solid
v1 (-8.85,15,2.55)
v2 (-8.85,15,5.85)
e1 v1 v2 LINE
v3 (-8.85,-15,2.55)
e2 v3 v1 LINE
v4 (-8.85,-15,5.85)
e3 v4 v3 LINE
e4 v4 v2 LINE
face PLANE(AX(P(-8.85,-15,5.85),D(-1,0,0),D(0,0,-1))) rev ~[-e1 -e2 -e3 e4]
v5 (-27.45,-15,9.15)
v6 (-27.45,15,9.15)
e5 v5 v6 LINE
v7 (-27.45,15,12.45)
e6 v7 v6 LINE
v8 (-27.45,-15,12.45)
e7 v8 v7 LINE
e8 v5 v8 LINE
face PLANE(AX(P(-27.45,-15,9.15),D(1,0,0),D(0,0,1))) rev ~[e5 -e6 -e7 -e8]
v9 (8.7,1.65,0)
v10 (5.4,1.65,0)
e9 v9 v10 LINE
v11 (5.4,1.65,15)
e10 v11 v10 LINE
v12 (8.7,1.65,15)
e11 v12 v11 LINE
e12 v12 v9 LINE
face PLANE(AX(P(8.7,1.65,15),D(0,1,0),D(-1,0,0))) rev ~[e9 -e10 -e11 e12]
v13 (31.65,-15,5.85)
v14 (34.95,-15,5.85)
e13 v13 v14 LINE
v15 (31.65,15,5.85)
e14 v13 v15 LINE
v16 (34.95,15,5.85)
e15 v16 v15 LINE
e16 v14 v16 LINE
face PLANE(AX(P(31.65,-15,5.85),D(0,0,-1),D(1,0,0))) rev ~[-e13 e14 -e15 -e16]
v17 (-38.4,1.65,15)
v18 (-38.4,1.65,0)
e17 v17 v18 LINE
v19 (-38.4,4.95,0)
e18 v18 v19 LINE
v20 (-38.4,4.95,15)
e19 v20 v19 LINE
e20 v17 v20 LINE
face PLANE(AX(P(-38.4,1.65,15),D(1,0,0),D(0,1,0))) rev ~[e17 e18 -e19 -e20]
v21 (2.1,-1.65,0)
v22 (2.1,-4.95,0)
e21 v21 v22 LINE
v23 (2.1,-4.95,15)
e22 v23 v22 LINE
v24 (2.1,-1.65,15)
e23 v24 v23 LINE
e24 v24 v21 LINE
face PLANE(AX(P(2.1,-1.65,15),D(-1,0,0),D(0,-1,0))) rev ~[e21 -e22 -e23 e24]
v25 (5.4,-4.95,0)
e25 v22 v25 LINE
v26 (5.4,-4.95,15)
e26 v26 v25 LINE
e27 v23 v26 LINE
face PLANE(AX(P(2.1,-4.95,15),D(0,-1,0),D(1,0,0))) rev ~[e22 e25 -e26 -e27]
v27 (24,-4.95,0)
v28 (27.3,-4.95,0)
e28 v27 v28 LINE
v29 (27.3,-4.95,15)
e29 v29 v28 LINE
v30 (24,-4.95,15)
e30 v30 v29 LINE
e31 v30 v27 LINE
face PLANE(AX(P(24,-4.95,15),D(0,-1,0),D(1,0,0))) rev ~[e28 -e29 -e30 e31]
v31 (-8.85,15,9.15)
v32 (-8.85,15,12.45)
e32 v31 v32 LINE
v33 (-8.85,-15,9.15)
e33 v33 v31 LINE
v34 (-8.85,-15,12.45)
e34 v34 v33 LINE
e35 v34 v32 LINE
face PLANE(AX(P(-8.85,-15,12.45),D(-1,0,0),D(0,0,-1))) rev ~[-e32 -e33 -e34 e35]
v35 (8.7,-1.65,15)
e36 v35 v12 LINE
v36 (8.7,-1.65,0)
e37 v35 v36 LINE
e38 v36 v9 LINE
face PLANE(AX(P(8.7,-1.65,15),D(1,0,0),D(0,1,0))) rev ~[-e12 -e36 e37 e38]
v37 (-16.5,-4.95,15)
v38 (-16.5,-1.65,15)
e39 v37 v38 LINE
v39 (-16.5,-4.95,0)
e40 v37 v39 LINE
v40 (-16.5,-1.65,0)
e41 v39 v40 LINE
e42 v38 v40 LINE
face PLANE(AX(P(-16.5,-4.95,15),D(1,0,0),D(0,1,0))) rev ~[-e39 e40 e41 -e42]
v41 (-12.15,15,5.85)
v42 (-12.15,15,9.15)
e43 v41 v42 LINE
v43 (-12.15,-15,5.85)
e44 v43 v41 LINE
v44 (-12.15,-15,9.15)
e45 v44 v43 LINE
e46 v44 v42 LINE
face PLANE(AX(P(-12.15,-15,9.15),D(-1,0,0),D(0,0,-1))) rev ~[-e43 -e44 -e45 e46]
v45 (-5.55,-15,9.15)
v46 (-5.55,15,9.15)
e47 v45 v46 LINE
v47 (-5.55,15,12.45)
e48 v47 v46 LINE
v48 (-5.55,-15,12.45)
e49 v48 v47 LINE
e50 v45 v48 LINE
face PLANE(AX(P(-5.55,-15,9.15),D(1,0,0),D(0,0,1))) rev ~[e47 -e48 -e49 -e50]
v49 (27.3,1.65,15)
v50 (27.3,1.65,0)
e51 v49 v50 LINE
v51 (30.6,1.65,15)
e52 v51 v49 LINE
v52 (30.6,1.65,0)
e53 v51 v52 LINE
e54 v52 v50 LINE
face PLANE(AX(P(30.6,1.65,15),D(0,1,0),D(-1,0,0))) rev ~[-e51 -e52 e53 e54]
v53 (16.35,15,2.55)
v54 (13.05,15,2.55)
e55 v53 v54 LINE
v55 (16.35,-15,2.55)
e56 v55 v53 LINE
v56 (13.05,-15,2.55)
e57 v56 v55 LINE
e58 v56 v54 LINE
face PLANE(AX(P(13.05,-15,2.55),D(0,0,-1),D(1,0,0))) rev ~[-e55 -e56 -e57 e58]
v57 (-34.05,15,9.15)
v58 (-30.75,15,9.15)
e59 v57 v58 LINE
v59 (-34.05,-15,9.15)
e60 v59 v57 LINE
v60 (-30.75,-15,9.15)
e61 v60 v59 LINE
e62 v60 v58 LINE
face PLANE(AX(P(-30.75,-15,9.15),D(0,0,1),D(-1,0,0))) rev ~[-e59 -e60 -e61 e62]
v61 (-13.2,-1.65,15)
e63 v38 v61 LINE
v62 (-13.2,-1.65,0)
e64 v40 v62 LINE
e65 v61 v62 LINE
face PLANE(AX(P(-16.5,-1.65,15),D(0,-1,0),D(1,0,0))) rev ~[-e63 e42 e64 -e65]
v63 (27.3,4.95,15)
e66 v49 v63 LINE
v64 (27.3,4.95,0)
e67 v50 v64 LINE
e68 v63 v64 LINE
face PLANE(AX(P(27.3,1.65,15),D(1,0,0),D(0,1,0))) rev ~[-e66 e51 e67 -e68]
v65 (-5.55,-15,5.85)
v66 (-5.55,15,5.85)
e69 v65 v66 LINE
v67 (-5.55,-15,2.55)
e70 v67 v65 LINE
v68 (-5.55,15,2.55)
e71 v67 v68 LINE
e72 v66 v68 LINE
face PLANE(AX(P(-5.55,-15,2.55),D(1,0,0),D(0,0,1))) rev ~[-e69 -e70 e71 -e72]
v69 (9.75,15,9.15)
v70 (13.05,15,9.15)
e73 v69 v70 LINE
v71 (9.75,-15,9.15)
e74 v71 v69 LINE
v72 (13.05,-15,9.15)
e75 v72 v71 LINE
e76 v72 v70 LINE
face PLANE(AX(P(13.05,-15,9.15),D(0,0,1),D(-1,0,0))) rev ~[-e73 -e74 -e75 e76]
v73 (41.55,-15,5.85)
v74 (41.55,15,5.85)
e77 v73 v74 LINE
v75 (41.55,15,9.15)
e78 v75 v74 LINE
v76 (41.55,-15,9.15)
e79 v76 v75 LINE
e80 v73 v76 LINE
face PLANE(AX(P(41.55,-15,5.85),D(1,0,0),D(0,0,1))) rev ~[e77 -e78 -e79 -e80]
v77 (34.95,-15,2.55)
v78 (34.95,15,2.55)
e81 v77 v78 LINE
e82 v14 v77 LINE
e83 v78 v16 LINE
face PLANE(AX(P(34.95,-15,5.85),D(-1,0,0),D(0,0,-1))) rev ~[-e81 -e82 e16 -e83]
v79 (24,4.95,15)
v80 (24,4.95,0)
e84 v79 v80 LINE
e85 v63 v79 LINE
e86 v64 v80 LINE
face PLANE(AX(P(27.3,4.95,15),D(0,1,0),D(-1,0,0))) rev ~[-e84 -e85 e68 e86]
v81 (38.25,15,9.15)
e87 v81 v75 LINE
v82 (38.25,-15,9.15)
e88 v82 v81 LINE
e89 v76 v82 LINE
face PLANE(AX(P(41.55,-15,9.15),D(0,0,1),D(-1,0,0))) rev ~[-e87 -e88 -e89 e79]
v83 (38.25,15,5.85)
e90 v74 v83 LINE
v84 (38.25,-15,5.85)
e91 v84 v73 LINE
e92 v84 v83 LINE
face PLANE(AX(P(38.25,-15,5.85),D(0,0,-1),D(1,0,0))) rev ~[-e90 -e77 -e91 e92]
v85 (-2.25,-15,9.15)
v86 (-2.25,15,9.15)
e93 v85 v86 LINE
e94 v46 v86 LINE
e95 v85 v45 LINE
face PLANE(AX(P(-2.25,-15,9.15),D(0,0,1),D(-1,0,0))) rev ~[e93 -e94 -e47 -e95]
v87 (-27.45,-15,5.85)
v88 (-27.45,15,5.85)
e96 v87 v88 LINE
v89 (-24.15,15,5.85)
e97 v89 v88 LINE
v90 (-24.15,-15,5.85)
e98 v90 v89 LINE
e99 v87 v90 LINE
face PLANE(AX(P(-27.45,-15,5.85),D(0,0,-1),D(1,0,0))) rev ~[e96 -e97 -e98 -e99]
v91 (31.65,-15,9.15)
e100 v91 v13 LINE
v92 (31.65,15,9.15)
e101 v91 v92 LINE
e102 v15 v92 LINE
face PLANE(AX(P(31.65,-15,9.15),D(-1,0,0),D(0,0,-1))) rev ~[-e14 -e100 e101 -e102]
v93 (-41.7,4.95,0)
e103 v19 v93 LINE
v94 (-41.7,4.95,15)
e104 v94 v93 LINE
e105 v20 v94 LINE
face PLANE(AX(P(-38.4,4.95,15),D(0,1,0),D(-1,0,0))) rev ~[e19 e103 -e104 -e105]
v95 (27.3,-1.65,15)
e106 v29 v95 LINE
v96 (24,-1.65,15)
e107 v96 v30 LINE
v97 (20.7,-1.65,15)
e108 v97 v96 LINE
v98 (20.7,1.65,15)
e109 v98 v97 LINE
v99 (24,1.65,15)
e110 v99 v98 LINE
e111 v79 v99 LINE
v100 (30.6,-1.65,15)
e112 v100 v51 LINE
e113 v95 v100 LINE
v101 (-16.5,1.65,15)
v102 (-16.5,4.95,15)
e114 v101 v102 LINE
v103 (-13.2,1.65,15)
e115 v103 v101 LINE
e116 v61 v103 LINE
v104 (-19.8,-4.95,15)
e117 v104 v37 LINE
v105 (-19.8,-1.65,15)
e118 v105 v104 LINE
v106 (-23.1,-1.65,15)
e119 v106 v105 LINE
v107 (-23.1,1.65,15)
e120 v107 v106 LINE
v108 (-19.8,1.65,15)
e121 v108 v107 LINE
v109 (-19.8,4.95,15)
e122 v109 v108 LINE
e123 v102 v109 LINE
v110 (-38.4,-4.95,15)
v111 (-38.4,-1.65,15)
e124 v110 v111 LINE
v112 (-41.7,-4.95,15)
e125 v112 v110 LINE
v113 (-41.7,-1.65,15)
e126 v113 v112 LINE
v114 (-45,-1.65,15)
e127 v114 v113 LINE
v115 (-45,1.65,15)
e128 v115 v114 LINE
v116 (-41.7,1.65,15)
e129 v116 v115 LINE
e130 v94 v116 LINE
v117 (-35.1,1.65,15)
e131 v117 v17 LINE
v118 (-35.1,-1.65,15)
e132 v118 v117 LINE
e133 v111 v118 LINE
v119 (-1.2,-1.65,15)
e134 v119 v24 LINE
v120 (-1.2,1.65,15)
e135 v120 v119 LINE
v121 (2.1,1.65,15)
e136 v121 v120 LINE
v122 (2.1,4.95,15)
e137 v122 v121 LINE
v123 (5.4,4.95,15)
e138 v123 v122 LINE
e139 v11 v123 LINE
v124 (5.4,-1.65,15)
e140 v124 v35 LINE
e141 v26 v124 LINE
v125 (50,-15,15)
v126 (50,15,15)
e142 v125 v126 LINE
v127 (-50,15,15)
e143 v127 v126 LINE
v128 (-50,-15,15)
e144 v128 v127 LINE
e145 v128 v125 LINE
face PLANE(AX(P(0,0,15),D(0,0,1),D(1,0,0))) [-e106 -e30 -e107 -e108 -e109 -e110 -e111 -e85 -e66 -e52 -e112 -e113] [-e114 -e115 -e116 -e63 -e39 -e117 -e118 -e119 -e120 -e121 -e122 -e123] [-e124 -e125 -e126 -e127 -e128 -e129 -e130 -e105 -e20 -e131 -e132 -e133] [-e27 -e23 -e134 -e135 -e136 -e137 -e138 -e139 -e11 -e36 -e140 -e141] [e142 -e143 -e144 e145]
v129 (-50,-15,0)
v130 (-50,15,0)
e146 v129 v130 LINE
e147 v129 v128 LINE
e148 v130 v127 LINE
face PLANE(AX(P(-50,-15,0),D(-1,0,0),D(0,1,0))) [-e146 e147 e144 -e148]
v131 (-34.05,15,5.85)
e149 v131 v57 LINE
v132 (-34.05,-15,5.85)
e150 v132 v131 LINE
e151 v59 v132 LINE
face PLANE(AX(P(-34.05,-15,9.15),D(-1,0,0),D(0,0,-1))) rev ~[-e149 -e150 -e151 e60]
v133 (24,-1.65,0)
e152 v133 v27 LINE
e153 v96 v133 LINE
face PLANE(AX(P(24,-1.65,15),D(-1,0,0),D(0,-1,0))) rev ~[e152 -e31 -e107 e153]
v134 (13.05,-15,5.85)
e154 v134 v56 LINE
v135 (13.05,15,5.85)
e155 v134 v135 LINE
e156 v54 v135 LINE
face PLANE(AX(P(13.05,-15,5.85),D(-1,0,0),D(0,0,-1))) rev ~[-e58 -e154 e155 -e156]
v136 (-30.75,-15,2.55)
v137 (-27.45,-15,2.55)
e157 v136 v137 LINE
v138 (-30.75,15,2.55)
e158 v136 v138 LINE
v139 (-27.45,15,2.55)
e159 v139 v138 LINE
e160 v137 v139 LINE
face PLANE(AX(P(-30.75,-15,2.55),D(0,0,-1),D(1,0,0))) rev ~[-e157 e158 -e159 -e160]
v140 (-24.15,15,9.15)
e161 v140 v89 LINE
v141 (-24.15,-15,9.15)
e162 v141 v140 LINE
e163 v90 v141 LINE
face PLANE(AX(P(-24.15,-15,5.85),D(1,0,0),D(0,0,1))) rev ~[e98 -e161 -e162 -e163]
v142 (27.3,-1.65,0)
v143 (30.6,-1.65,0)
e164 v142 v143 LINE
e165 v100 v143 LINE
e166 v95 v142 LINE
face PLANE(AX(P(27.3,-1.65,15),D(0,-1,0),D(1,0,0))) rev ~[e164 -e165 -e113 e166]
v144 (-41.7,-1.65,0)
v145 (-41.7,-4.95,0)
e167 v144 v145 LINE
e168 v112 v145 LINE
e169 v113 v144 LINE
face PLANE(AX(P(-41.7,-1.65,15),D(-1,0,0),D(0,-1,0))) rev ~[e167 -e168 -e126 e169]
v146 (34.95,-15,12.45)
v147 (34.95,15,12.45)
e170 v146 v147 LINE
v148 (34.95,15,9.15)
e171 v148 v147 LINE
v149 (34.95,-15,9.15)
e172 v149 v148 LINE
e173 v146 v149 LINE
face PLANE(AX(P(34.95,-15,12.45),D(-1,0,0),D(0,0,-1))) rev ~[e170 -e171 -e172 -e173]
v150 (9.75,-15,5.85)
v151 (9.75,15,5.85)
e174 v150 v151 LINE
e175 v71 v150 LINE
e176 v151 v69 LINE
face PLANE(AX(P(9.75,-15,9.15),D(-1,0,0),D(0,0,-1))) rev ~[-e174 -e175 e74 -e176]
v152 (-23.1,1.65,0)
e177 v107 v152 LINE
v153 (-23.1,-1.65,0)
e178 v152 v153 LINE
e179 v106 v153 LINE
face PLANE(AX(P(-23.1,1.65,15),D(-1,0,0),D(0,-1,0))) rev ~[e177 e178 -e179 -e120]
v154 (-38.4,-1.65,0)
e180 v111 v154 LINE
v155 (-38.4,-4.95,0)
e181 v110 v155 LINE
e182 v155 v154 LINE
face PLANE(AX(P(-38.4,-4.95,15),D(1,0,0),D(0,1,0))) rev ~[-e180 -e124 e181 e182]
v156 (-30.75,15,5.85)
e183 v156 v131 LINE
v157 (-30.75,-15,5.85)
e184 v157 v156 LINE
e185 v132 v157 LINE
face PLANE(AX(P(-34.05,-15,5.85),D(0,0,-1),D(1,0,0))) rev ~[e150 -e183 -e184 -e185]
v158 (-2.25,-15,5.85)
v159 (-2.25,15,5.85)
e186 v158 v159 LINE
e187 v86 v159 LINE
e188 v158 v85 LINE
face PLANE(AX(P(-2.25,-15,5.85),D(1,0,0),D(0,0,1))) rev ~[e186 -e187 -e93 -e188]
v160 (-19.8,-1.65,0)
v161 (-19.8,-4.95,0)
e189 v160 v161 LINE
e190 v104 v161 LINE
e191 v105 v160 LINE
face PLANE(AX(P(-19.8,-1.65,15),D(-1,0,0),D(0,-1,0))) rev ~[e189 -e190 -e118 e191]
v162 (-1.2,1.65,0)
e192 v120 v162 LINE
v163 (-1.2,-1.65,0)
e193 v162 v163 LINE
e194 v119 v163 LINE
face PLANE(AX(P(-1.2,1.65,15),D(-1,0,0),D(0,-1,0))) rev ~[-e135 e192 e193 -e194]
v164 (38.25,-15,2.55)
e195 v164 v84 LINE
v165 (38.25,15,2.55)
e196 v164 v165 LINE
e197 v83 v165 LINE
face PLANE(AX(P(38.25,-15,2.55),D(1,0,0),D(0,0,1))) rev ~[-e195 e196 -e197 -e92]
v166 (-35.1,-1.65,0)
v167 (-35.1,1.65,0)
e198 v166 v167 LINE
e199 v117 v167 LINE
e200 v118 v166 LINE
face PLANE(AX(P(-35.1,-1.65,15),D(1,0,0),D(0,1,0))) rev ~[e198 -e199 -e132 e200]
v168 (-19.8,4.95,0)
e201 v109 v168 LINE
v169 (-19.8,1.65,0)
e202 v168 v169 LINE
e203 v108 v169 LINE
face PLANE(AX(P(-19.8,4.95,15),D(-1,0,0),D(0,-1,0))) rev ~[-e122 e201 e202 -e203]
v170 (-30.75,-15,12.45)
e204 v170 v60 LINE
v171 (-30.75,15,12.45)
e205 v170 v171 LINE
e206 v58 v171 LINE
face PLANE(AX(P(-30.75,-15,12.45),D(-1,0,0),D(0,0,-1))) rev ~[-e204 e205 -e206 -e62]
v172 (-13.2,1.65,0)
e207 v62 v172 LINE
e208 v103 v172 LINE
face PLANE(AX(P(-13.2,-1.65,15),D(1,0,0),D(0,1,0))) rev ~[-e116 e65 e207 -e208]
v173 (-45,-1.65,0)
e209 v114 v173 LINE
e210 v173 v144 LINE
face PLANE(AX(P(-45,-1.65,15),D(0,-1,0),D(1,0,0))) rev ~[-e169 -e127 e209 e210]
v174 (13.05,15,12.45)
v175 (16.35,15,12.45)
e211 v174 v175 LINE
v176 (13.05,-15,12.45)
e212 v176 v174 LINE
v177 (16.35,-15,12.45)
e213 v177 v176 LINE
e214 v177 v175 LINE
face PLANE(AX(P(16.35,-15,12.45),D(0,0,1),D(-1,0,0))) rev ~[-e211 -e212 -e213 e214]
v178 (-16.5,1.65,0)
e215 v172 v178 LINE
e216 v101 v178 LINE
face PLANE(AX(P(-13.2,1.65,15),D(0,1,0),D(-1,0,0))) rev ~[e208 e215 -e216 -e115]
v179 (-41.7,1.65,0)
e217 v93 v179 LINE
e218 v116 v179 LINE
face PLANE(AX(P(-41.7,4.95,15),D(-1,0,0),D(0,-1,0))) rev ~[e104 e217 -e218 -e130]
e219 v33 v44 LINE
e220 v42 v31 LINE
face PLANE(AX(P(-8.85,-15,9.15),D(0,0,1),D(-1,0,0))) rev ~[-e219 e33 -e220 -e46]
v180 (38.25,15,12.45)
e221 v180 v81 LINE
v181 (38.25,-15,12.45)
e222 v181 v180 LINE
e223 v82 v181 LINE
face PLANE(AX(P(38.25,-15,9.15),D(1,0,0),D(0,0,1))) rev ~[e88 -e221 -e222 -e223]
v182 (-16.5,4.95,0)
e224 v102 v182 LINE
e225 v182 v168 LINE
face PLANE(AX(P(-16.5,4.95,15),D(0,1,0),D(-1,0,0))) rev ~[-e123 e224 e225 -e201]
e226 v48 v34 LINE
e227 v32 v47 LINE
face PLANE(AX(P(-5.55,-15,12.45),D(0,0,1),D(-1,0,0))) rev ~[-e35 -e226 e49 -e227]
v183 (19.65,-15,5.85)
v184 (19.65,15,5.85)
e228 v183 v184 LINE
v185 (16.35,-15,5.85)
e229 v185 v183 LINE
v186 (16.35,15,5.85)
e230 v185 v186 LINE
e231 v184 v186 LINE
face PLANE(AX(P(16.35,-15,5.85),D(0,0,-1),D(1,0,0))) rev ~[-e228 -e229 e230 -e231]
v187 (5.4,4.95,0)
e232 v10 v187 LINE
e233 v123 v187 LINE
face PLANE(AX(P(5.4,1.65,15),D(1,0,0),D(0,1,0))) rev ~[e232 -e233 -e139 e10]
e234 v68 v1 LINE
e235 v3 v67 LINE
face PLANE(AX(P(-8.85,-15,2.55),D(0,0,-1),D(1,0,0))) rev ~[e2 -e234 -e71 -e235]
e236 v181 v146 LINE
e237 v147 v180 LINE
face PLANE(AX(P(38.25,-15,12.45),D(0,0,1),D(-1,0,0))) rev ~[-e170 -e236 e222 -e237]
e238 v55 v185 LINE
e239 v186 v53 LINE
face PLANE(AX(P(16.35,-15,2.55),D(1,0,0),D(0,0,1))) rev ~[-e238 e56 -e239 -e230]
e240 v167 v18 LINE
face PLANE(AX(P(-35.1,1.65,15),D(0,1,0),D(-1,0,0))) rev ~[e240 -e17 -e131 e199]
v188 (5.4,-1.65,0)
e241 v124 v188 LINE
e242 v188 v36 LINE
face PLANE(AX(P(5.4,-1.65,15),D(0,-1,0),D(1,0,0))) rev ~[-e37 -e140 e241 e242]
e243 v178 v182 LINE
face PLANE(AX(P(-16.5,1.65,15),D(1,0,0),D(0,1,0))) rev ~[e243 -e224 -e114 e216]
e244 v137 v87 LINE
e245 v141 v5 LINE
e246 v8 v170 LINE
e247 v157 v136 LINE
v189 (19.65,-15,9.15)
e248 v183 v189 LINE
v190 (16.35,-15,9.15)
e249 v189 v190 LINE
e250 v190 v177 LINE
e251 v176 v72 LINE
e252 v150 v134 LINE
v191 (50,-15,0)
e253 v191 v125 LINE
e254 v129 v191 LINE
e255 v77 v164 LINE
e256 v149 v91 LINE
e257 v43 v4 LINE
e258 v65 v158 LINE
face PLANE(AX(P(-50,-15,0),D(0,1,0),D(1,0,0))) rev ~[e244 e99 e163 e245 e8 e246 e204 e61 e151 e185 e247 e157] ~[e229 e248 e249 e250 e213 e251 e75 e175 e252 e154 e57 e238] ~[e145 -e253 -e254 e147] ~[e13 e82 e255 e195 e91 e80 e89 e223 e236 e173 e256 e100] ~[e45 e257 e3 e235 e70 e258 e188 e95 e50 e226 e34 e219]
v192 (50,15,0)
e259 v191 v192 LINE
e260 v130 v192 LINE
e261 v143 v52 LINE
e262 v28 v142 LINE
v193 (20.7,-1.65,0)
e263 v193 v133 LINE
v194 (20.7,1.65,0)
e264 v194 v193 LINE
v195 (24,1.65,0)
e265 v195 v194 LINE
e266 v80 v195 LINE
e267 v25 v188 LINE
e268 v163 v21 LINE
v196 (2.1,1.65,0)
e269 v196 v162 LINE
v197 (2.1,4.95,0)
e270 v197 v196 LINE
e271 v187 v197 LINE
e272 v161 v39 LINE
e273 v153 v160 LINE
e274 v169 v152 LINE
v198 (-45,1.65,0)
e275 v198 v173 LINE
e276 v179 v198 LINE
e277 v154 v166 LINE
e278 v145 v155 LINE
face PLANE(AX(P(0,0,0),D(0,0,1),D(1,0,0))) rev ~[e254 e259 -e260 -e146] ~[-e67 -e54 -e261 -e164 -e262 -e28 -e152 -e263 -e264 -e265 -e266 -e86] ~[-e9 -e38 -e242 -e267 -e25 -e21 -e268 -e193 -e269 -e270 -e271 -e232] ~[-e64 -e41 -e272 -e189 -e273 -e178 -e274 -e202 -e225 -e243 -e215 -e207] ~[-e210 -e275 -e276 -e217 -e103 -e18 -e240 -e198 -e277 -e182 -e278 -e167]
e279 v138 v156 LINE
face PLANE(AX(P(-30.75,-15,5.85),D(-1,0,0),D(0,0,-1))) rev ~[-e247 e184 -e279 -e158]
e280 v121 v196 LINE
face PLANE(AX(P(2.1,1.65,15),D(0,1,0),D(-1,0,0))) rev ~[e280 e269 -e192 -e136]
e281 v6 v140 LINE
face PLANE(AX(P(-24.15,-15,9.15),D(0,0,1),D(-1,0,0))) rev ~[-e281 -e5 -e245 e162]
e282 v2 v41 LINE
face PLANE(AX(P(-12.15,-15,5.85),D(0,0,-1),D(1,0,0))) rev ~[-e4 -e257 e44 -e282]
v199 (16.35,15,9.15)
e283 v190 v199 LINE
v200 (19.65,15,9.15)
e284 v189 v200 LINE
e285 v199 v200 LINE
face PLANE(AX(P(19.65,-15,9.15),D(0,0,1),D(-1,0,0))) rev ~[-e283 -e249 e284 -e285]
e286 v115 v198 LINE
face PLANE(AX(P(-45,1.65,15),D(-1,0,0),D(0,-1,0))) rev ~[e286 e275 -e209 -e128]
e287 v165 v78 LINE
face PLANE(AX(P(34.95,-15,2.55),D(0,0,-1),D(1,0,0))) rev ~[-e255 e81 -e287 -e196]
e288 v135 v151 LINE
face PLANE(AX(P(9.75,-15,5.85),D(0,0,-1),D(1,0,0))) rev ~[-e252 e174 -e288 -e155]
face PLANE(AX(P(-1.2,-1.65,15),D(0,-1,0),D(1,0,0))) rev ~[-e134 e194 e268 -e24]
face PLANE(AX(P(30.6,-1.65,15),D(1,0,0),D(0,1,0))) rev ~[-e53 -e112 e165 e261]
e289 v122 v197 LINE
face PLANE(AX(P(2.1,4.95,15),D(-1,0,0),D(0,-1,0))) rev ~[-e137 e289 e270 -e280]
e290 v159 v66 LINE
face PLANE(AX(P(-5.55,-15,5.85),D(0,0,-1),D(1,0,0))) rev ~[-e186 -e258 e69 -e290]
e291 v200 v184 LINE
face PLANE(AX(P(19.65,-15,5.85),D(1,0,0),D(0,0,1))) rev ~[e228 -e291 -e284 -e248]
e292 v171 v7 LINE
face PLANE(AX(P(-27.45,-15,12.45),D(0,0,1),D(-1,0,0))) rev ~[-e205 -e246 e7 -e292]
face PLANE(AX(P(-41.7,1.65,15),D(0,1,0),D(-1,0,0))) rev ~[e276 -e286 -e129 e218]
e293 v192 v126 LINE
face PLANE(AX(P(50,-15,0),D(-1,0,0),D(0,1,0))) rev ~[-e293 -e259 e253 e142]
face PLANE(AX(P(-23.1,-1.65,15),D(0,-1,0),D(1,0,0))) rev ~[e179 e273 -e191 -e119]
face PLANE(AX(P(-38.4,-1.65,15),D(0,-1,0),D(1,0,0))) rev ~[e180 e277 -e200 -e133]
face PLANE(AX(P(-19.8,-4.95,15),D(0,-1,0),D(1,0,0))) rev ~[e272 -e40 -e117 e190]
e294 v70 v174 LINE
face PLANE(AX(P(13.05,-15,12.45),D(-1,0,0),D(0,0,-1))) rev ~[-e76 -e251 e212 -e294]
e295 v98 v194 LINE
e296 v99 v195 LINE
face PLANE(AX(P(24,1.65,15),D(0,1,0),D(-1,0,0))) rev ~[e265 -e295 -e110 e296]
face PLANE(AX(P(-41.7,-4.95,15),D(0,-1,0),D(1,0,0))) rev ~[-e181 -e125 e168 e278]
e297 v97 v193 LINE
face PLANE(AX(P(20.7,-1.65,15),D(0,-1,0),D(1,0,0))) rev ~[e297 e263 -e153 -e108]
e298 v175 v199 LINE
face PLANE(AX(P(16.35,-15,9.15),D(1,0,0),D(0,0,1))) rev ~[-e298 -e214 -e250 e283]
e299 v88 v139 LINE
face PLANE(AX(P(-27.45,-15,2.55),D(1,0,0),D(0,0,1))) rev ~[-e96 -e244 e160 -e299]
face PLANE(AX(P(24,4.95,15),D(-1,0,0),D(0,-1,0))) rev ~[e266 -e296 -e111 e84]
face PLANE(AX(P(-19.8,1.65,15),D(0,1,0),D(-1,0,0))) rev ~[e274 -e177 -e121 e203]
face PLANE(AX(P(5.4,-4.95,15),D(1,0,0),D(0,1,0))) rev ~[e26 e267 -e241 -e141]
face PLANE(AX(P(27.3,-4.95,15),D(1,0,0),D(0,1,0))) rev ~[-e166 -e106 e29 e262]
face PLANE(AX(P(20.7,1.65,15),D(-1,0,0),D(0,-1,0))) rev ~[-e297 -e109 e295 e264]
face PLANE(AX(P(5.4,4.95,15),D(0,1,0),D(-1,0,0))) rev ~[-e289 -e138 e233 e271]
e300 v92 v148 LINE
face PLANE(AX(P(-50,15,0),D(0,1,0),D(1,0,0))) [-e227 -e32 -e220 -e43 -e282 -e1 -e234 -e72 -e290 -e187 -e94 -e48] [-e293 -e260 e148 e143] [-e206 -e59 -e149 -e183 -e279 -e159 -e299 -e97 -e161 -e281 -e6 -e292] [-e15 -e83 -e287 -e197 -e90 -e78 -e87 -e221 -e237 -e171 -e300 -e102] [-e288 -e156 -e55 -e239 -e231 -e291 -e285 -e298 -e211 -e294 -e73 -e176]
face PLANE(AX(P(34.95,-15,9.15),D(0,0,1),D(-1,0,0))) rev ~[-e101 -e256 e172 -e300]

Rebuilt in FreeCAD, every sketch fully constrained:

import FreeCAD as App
import Part
import Sketcher
Q = App.Units.Quantity

doc = App.newDocument("Part")
body = doc.addObject("PartDesign::Body", "Body")

# Sketch on XY plane
sketch1 = body.newObject("Sketcher::SketchObject", "Sketch")
sketch1.AttachmentSupport = (doc.getObject("XY_Plane"), [""])
sketch1.MapMode = "FlatFace"
sketch1.addGeometry(Part.LineSegment(App.Vector(-50, 15, 0), App.Vector(-50, -15, 0)), False)
sketch1.addGeometry(Part.LineSegment(App.Vector(-50, -15, 0), App.Vector(50, -15, 0)), False)
sketch1.addGeometry(Part.LineSegment(App.Vector(50, -15, 0), App.Vector(50, 15, 0)), False)
sketch1.addGeometry(Part.LineSegment(App.Vector(50, 15, 0), App.Vector(-50, 15, 0)), False)
sketch1.addConstraint(Sketcher.Constraint("Coincident", 0, 2, 1, 1))
sketch1.addConstraint(Sketcher.Constraint("Coincident", 1, 2, 2, 1))
sketch1.addConstraint(Sketcher.Constraint("Coincident", 2, 2, 3, 1))
sketch1.addConstraint(Sketcher.Constraint("Coincident", 3, 2, 0, 1))
sketch1.addConstraint(Sketcher.Constraint("Vertical", 0))
sketch1.addConstraint(Sketcher.Constraint("Horizontal", 1))
sketch1.addConstraint(Sketcher.Constraint("Vertical", 2))
sketch1.addConstraint(Sketcher.Constraint("Horizontal", 3))
sketch1.addConstraint(Sketcher.Constraint("Symmetric", 0, 2, 2, 2, -1, 1))
sketch1.addConstraint(Sketcher.Constraint("DistanceX", 1, 1, 1, 2, Q("100 mm")))
sketch1.addConstraint(Sketcher.Constraint("DistanceY", 0, 2, 0, 1, Q("30 mm")))
pad1 = body.newObject("PartDesign::Pad", "Pad")
pad1.Profile = sketch1
pad1.Length = 15

# Sketch on XY plane
sketch2 = body.newObject("Sketcher::SketchObject", "Sketch001")
sketch2.AttachmentSupport = (doc.getObject("XY_Plane"), [""])
sketch2.MapMode = "FlatFace"
sketch2.AttachmentOffset = App.Placement(App.Vector(0, 0, 15), App.Rotation())
sketch2.addGeometry(Part.LineSegment(App.Vector(-38.4, 5, 0), App.Vector(-41.7, 5, 0)), False)
sketch2.addGeometry(Part.LineSegment(App.Vector(-41.7, 5, 0), App.Vector(-41.7, 1.6, 0)), False)
sketch2.addGeometry(Part.LineSegment(App.Vector(-41.7, 1.6, 0), App.Vector(-45, 1.6, 0)), False)
sketch2.addGeometry(Part.LineSegment(App.Vector(-45, 1.6, 0), App.Vector(-45, -1.6, 0)), False)
sketch2.addGeometry(Part.LineSegment(App.Vector(-45, -1.6, 0), App.Vector(-41.7, -1.6, 0)), False)
sketch2.addGeometry(Part.LineSegment(App.Vector(-41.7, -1.6, 0), App.Vector(-41.7, -5, 0)), False)
sketch2.addGeometry(Part.LineSegment(App.Vector(-41.7, -5, 0), App.Vector(-38.4, -5, 0)), False)
sketch2.addGeometry(Part.LineSegment(App.Vector(-38.4, -5, 0), App.Vector(-38.4, -1.6, 0)), False)
sketch2.addGeometry(Part.LineSegment(App.Vector(-38.4, -1.6, 0), App.Vector(-35.1, -1.6, 0)), False)
sketch2.addGeometry(Part.LineSegment(App.Vector(-35.1, -1.6, 0), App.Vector(-35.1, 1.6, 0)), False)
sketch2.addGeometry(Part.LineSegment(App.Vector(-35.1, 1.6, 0), App.Vector(-38.4, 1.6, 0)), False)
sketch2.addGeometry(Part.LineSegment(App.Vector(-38.4, 1.6, 0), App.Vector(-38.4, 5, 0)), False)
sketch2.addGeometry(Part.LineSegment(App.Vector(-23.1, 1.6, 0), App.Vector(-23.1, -1.6, 0)), False)
sketch2.addGeometry(Part.LineSegment(App.Vector(-23.1, -1.6, 0), App.Vector(-19.8, -1.6, 0)), False)
sketch2.addGeometry(Part.LineSegment(App.Vector(-19.8, -1.6, 0), App.Vector(-19.8, -5, 0)), False)
sketch2.addGeometry(Part.LineSegment(App.Vector(-19.8, -5, 0), App.Vector(-16.5, -5, 0)), False)
sketch2.addGeometry(Part.LineSegment(App.Vector(-16.5, -5, 0), App.Vector(-16.5, -1.6, 0)), False)
sketch2.addGeometry(Part.LineSegment(App.Vector(-16.5, -1.6, 0), App.Vector(-13.2, -1.6, 0)), False)
sketch2.addGeometry(Part.LineSegment(App.Vector(-13.2, -1.6, 0), App.Vector(-13.2, 1.6, 0)), False)
sketch2.addGeometry(Part.LineSegment(App.Vector(-13.2, 1.6, 0), App.Vector(-16.5, 1.6, 0)), False)
sketch2.addGeometry(Part.LineSegment(App.Vector(-16.5, 1.6, 0), App.Vector(-16.5, 5, 0)), False)
sketch2.addGeometry(Part.LineSegment(App.Vector(-16.5, 5, 0), App.Vector(-19.8, 5, 0)), False)
sketch2.addGeometry(Part.LineSegment(App.Vector(-19.8, 5, 0), App.Vector(-19.8, 1.6, 0)), False)
sketch2.addGeometry(Part.LineSegment(App.Vector(-19.8, 1.6, 0), App.Vector(-23.1, 1.6, 0)), False)
sketch2.addGeometry(Part.LineSegment(App.Vector(-1.2, 1.6, 0), App.Vector(-1.2, -1.6, 0)), False)
sketch2.addGeometry(Part.LineSegment(App.Vector(-1.2, -1.6, 0), App.Vector(2.1, -1.6, 0)), False)
sketch2.addGeometry(Part.LineSegment(App.Vector(2.1, -1.6, 0), App.Vector(2.1, -5, 0)), False)
sketch2.addGeometry(Part.LineSegment(App.Vector(2.1, -5, 0), App.Vector(5.4, -5, 0)), False)
sketch2.addGeometry(Part.LineSegment(App.Vector(5.4, -5, 0), App.Vector(5.4, -1.6, 0)), False)
sketch2.addGeometry(Part.LineSegment(App.Vector(5.4, -1.6, 0), App.Vector(8.7, -1.6, 0)), False)
sketch2.addGeometry(Part.LineSegment(App.Vector(8.7, -1.6, 0), App.Vector(8.7, 1.6, 0)), False)
sketch2.addGeometry(Part.LineSegment(App.Vector(8.7, 1.6, 0), App.Vector(5.4, 1.6, 0)), False)
sketch2.addGeometry(Part.LineSegment(App.Vector(5.4, 1.6, 0), App.Vector(5.4, 5, 0)), False)
sketch2.addGeometry(Part.LineSegment(App.Vector(5.4, 5, 0), App.Vector(2.1, 5, 0)), False)
sketch2.addGeometry(Part.LineSegment(App.Vector(2.1, 5, 0), App.Vector(2.1, 1.6, 0)), False)
sketch2.addGeometry(Part.LineSegment(App.Vector(2.1, 1.6, 0), App.Vector(-1.2, 1.6, 0)), False)
sketch2.addGeometry(Part.LineSegment(App.Vector(20.7, 1.6, 0), App.Vector(20.7, -1.6, 0)), False)
sketch2.addGeometry(Part.LineSegment(App.Vector(20.7, -1.6, 0), App.Vector(24, -1.6, 0)), False)
sketch2.addGeometry(Part.LineSegment(App.Vector(24, -1.6, 0), App.Vector(24, -5, 0)), False)
sketch2.addGeometry(Part.LineSegment(App.Vector(24, -5, 0), App.Vector(27.3, -5, 0)), False)
sketch2.addGeometry(Part.LineSegment(App.Vector(27.3, -5, 0), App.Vector(27.3, -1.6, 0)), False)
sketch2.addGeometry(Part.LineSegment(App.Vector(27.3, -1.6, 0), App.Vector(30.6, -1.6, 0)), False)
sketch2.addGeometry(Part.LineSegment(App.Vector(30.6, -1.6, 0), App.Vector(30.6, 1.6, 0)), False)
sketch2.addGeometry(Part.LineSegment(App.Vector(30.6, 1.6, 0), App.Vector(27.3, 1.6, 0)), False)
sketch2.addGeometry(Part.LineSegment(App.Vector(27.3, 1.6, 0), App.Vector(27.3, 5, 0)), False)
sketch2.addGeometry(Part.LineSegment(App.Vector(27.3, 5, 0), App.Vector(24, 5, 0)), False)
sketch2.addGeometry(Part.LineSegment(App.Vector(24, 5, 0), App.Vector(24, 1.6, 0)), False)
sketch2.addGeometry(Part.LineSegment(App.Vector(24, 1.6, 0), App.Vector(20.7, 1.6, 0)), False)
sketch2.addConstraint(Sketcher.Constraint("Coincident", 0, 2, 1, 1))
sketch2.addConstraint(Sketcher.Constraint("Coincident", 1, 2, 2, 1))
sketch2.addConstraint(Sketcher.Constraint("Coincident", 2, 2, 3, 1))
sketch2.addConstraint(Sketcher.Constraint("Coincident", 3, 2, 4, 1))
sketch2.addConstraint(Sketcher.Constraint("Coincident", 4, 2, 5, 1))
sketch2.addConstraint(Sketcher.Constraint("Coincident", 5, 2, 6, 1))
sketch2.addConstraint(Sketcher.Constraint("Coincident", 6, 2, 7, 1))
sketch2.addConstraint(Sketcher.Constraint("Coincident", 7, 2, 8, 1))
sketch2.addConstraint(Sketcher.Constraint("Coincident", 8, 2, 9, 1))
sketch2.addConstraint(Sketcher.Constraint("Coincident", 9, 2, 10, 1))
sketch2.addConstraint(Sketcher.Constraint("Coincident", 10, 2, 11, 1))
sketch2.addConstraint(Sketcher.Constraint("Coincident", 11, 2, 0, 1))
sketch2.addConstraint(Sketcher.Constraint("Coincident", 12, 2, 13, 1))
sketch2.addConstraint(Sketcher.Constraint("Coincident", 13, 2, 14, 1))
sketch2.addConstraint(Sketcher.Constraint("Coincident", 14, 2, 15, 1))
sketch2.addConstraint(Sketcher.Constraint("Coincident", 15, 2, 16, 1))
sketch2.addConstraint(Sketcher.Constraint("Coincident", 16, 2, 17, 1))
sketch2.addConstraint(Sketcher.Constraint("Coincident", 17, 2, 18, 1))
sketch2.addConstraint(Sketcher.Constraint("Coincident", 18, 2, 19, 1))
sketch2.addConstraint(Sketcher.Constraint("Coincident", 19, 2, 20, 1))
sketch2.addConstraint(Sketcher.Constraint("Coincident", 20, 2, 21, 1))
sketch2.addConstraint(Sketcher.Constraint("Coincident", 21, 2, 22, 1))
sketch2.addConstraint(Sketcher.Constraint("Coincident", 22, 2, 23, 1))
sketch2.addConstraint(Sketcher.Constraint("Coincident", 23, 2, 12, 1))
sketch2.addConstraint(Sketcher.Constraint("Coincident", 24, 2, 25, 1))
sketch2.addConstraint(Sketcher.Constraint("Coincident", 25, 2, 26, 1))
sketch2.addConstraint(Sketcher.Constraint("Coincident", 26, 2, 27, 1))
sketch2.addConstraint(Sketcher.Constraint("Coincident", 27, 2, 28, 1))
sketch2.addConstraint(Sketcher.Constraint("Coincident", 28, 2, 29, 1))
sketch2.addConstraint(Sketcher.Constraint("Coincident", 29, 2, 30, 1))
sketch2.addConstraint(Sketcher.Constraint("Coincident", 30, 2, 31, 1))
sketch2.addConstraint(Sketcher.Constraint("Coincident", 31, 2, 32, 1))
sketch2.addConstraint(Sketcher.Constraint("Coincident", 32, 2, 33, 1))
sketch2.addConstraint(Sketcher.Constraint("Coincident", 33, 2, 34, 1))
sketch2.addConstraint(Sketcher.Constraint("Coincident", 34, 2, 35, 1))
sketch2.addConstraint(Sketcher.Constraint("Coincident", 35, 2, 24, 1))
sketch2.addConstraint(Sketcher.Constraint("Coincident", 36, 2, 37, 1))
sketch2.addConstraint(Sketcher.Constraint("Coincident", 37, 2, 38, 1))
sketch2.addConstraint(Sketcher.Constraint("Coincident", 38, 2, 39, 1))
sketch2.addConstraint(Sketcher.Constraint("Coincident", 39, 2, 40, 1))
sketch2.addConstraint(Sketcher.Constraint("Coincident", 40, 2, 41, 1))
sketch2.addConstraint(Sketcher.Constraint("Coincident", 41, 2, 42, 1))
sketch2.addConstraint(Sketcher.Constraint("Coincident", 42, 2, 43, 1))
sketch2.addConstraint(Sketcher.Constraint("Coincident", 43, 2, 44, 1))
sketch2.addConstraint(Sketcher.Constraint("Coincident", 44, 2, 45, 1))
sketch2.addConstraint(Sketcher.Constraint("Coincident", 45, 2, 46, 1))
sketch2.addConstraint(Sketcher.Constraint("Coincident", 46, 2, 47, 1))
sketch2.addConstraint(Sketcher.Constraint("Coincident", 47, 2, 36, 1))
sketch2.addConstraint(Sketcher.Constraint("Horizontal", 0))
sketch2.addConstraint(Sketcher.Constraint("Vertical", 1))
sketch2.addConstraint(Sketcher.Constraint("Horizontal", 2))
sketch2.addConstraint(Sketcher.Constraint("Vertical", 3))
sketch2.addConstraint(Sketcher.Constraint("Horizontal", 4))
sketch2.addConstraint(Sketcher.Constraint("Vertical", 5))
sketch2.addConstraint(Sketcher.Constraint("Horizontal", 6))
sketch2.addConstraint(Sketcher.Constraint("Vertical", 7))
sketch2.addConstraint(Sketcher.Constraint("Horizontal", 8))
sketch2.addConstraint(Sketcher.Constraint("Vertical", 9))
sketch2.addConstraint(Sketcher.Constraint("Horizontal", 10))
sketch2.addConstraint(Sketcher.Constraint("Vertical", 11))
sketch2.addConstraint(Sketcher.Constraint("Vertical", 12))
sketch2.addConstraint(Sketcher.Constraint("Horizontal", 13))
sketch2.addConstraint(Sketcher.Constraint("Vertical", 14))
sketch2.addConstraint(Sketcher.Constraint("Horizontal", 15))
sketch2.addConstraint(Sketcher.Constraint("Vertical", 16))
sketch2.addConstraint(Sketcher.Constraint("Horizontal", 17))
sketch2.addConstraint(Sketcher.Constraint("Vertical", 18))
sketch2.addConstraint(Sketcher.Constraint("Horizontal", 19))
sketch2.addConstraint(Sketcher.Constraint("Vertical", 20))
sketch2.addConstraint(Sketcher.Constraint("Horizontal", 21))
sketch2.addConstraint(Sketcher.Constraint("Vertical", 22))
sketch2.addConstraint(Sketcher.Constraint("Horizontal", 23))
sketch2.addConstraint(Sketcher.Constraint("Vertical", 24))
sketch2.addConstraint(Sketcher.Constraint("Horizontal", 25))
sketch2.addConstraint(Sketcher.Constraint("Vertical", 26))
sketch2.addConstraint(Sketcher.Constraint("Horizontal", 27))
sketch2.addConstraint(Sketcher.Constraint("Vertical", 28))
sketch2.addConstraint(Sketcher.Constraint("Horizontal", 29))
sketch2.addConstraint(Sketcher.Constraint("Vertical", 30))
sketch2.addConstraint(Sketcher.Constraint("Horizontal", 31))
sketch2.addConstraint(Sketcher.Constraint("Vertical", 32))
sketch2.addConstraint(Sketcher.Constraint("Horizontal", 33))
sketch2.addConstraint(Sketcher.Constraint("Vertical", 34))
sketch2.addConstraint(Sketcher.Constraint("Horizontal", 35))
sketch2.addConstraint(Sketcher.Constraint("Vertical", 36))
sketch2.addConstraint(Sketcher.Constraint("Horizontal", 37))
sketch2.addConstraint(Sketcher.Constraint("Vertical", 38))
sketch2.addConstraint(Sketcher.Constraint("Horizontal", 39))
sketch2.addConstraint(Sketcher.Constraint("Vertical", 40))
sketch2.addConstraint(Sketcher.Constraint("Horizontal", 41))
sketch2.addConstraint(Sketcher.Constraint("Vertical", 42))
sketch2.addConstraint(Sketcher.Constraint("Horizontal", 43))
sketch2.addConstraint(Sketcher.Constraint("Vertical", 44))
sketch2.addConstraint(Sketcher.Constraint("Horizontal", 45))
sketch2.addConstraint(Sketcher.Constraint("Vertical", 46))
sketch2.addConstraint(Sketcher.Constraint("Horizontal", 47))
sketch2.addConstraint(Sketcher.Constraint("Symmetric", 1, 2, 4, 2, -1))
sketch2.addConstraint(Sketcher.Constraint("Symmetric", 7, 2, 10, 2, -1))
sketch2.addConstraint(Sketcher.Constraint("Symmetric", 16, 2, 19, 2, -1))
sketch2.addConstraint(Sketcher.Constraint("Symmetric", 14, 2, 21, 2, -1))
sketch2.addConstraint(Sketcher.Constraint("Symmetric", 28, 2, 31, 2, -1))
sketch2.addConstraint(Sketcher.Constraint("Symmetric", 26, 2, 33, 2, -1))
sketch2.addConstraint(Sketcher.Constraint("Symmetric", 40, 2, 43, 2, -1))
sketch2.addConstraint(Sketcher.Constraint("Symmetric", 38, 2, 45, 2, -1))
sketch2.addConstraint(Sketcher.Constraint("Horizontal", 4, 2, 7, 2))
sketch2.addConstraint(Sketcher.Constraint("Horizontal", 8, 2, 12, 2))
sketch2.addConstraint(Sketcher.Constraint("Horizontal", 6, 2, 14, 2))
sketch2.addConstraint(Sketcher.Constraint("Horizontal", 13, 2, 16, 2))
sketch2.addConstraint(Sketcher.Constraint("Horizontal", 11, 2, 20, 2))
sketch2.addConstraint(Sketcher.Constraint("Horizontal", 19, 2, 22, 2))
sketch2.addConstraint(Sketcher.Constraint("Horizontal", 17, 2, 24, 2))
sketch2.addConstraint(Sketcher.Constraint("Horizontal", 15, 2, 26, 2))
sketch2.addConstraint(Sketcher.Constraint("Horizontal", 25, 2, 28, 2))
sketch2.addConstraint(Sketcher.Constraint("Horizontal", 31, 2, 34, 2))
sketch2.addConstraint(Sketcher.Constraint("Horizontal", 29, 2, 36, 2))
sketch2.addConstraint(Sketcher.Constraint("Horizontal", 27, 2, 38, 2))
sketch2.addConstraint(Sketcher.Constraint("Horizontal", 37, 2, 40, 2))
sketch2.addConstraint(Sketcher.Constraint("Horizontal", 43, 2, 46, 2))
sketch2.addConstraint(Sketcher.Constraint("Equal", 0, 2))
sketch2.addConstraint(Sketcher.Constraint("Equal", 6, 8))
sketch2.addConstraint(Sketcher.Constraint("Equal", 10, 13))
sketch2.addConstraint(Sketcher.Constraint("Equal", 13, 15))
sketch2.addConstraint(Sketcher.Constraint("Equal", 15, 17))
sketch2.addConstraint(Sketcher.Constraint("Equal", 23, 25))
sketch2.addConstraint(Sketcher.Constraint("Equal", 25, 27))
sketch2.addConstraint(Sketcher.Constraint("Equal", 27, 29))
sketch2.addConstraint(Sketcher.Constraint("Equal", 35, 37))
sketch2.addConstraint(Sketcher.Constraint("Equal", 37, 39))
sketch2.addConstraint(Sketcher.Constraint("Equal", 39, 41))
sketch2.addConstraint(Sketcher.Constraint("Equal", 47, 1))
sketch2.addConstraint(Sketcher.Constraint("Equal", 1, 3))
sketch2.addConstraint(Sketcher.Constraint("DistanceX", 0, 2, 0, 1, Q("3.3 mm")))
sketch2.addConstraint(Sketcher.Constraint("DistanceX", 2, 2, -1, 1, Q("45 mm")))
sketch2.addConstraint(Sketcher.Constraint("DistanceX", -1, 1, 37, 2, Q("24 mm")))
sketch2.addConstraint(Sketcher.Constraint("DistanceX", 8, 2, 12, 2, Q("12 mm")))
sketch2.addConstraint(Sketcher.Constraint("DistanceX", 17, 2, 24, 2, Q("12 mm")))
pocket1 = body.newObject("PartDesign::Pocket", "Pocket")
pocket1.Profile = sketch2
pocket1.Type = "ThroughAll"

# Sketch on XZ plane
sketch3 = body.newObject("Sketcher::SketchObject", "Sketch002")
sketch3.AttachmentSupport = (doc.getObject("XZ_Plane"), [""])
sketch3.MapMode = "FlatFace"
sketch3.AttachmentOffset = App.Placement(App.Vector(0, 0, 15), App.Rotation())
sketch3.addGeometry(Part.LineSegment(App.Vector(-27.4, 12.4, 0), App.Vector(-30.8, 12.4, 0)), False)
sketch3.addGeometry(Part.LineSegment(App.Vector(-30.8, 12.4, 0), App.Vector(-30.8, 9.2, 0)), False)
sketch3.addGeometry(Part.LineSegment(App.Vector(-30.8, 9.2, 0), App.Vector(-34, 9.2, 0)), False)
sketch3.addGeometry(Part.LineSegment(App.Vector(-34, 9.2, 0), App.Vector(-34, 5.8, 0)), False)
sketch3.addGeometry(Part.LineSegment(App.Vector(-34, 5.8, 0), App.Vector(-30.8, 5.8, 0)), False)
sketch3.addGeometry(Part.LineSegment(App.Vector(-30.8, 5.8, 0), App.Vector(-30.8, 2.5, 0)), False)
sketch3.addGeometry(Part.LineSegment(App.Vector(-30.8, 2.5, 0), App.Vector(-27.4, 2.5, 0)), False)
sketch3.addGeometry(Part.LineSegment(App.Vector(-27.4, 2.5, 0), App.Vector(-27.4, 5.8, 0)), False)
sketch3.addGeometry(Part.LineSegment(App.Vector(-27.4, 5.8, 0), App.Vector(-24.1, 5.8, 0)), False)
sketch3.addGeometry(Part.LineSegment(App.Vector(-24.1, 5.8, 0), App.Vector(-24.1, 9.2, 0)), False)
sketch3.addGeometry(Part.LineSegment(App.Vector(-24.1, 9.2, 0), App.Vector(-27.4, 9.2, 0)), False)
sketch3.addGeometry(Part.LineSegment(App.Vector(-27.4, 9.2, 0), App.Vector(-27.4, 12.4, 0)), False)
sketch3.addGeometry(Part.LineSegment(App.Vector(-8.8, 9.2, 0), App.Vector(-12.2, 9.2, 0)), False)
sketch3.addGeometry(Part.LineSegment(App.Vector(-12.2, 9.2, 0), App.Vector(-12.2, 5.8, 0)), False)
sketch3.addGeometry(Part.LineSegment(App.Vector(-12.2, 5.8, 0), App.Vector(-8.8, 5.8, 0)), False)
sketch3.addGeometry(Part.LineSegment(App.Vector(-8.8, 5.8, 0), App.Vector(-8.8, 2.5, 0)), False)
sketch3.addGeometry(Part.LineSegment(App.Vector(-8.8, 2.5, 0), App.Vector(-5.5, 2.5, 0)), False)
sketch3.addGeometry(Part.LineSegment(App.Vector(-5.5, 2.5, 0), App.Vector(-5.5, 5.8, 0)), False)
sketch3.addGeometry(Part.LineSegment(App.Vector(-5.5, 5.8, 0), App.Vector(-2.2, 5.8, 0)), False)
sketch3.addGeometry(Part.LineSegment(App.Vector(-2.2, 5.8, 0), App.Vector(-2.2, 9.2, 0)), False)
sketch3.addGeometry(Part.LineSegment(App.Vector(-2.2, 9.2, 0), App.Vector(-5.5, 9.2, 0)), False)
sketch3.addGeometry(Part.LineSegment(App.Vector(-5.5, 9.2, 0), App.Vector(-5.5, 12.4, 0)), False)
sketch3.addGeometry(Part.LineSegment(App.Vector(-5.5, 12.4, 0), App.Vector(-8.8, 12.4, 0)), False)
sketch3.addGeometry(Part.LineSegment(App.Vector(-8.8, 12.4, 0), App.Vector(-8.8, 9.2, 0)), False)
sketch3.addGeometry(Part.LineSegment(App.Vector(13.1, 9.2, 0), App.Vector(9.8, 9.2, 0)), False)
sketch3.addGeometry(Part.LineSegment(App.Vector(9.8, 9.2, 0), App.Vector(9.8, 5.8, 0)), False)
sketch3.addGeometry(Part.LineSegment(App.Vector(9.8, 5.8, 0), App.Vector(13.1, 5.8, 0)), False)
sketch3.addGeometry(Part.LineSegment(App.Vector(13.1, 5.8, 0), App.Vector(13.1, 2.5, 0)), False)
sketch3.addGeometry(Part.LineSegment(App.Vector(13.1, 2.5, 0), App.Vector(16.4, 2.5, 0)), False)
sketch3.addGeometry(Part.LineSegment(App.Vector(16.4, 2.5, 0), App.Vector(16.4, 5.8, 0)), False)
sketch3.addGeometry(Part.LineSegment(App.Vector(16.4, 5.8, 0), App.Vector(19.6, 5.8, 0)), False)
sketch3.addGeometry(Part.LineSegment(App.Vector(19.6, 5.8, 0), App.Vector(19.6, 9.2, 0)), False)
sketch3.addGeometry(Part.LineSegment(App.Vector(19.6, 9.2, 0), App.Vector(16.4, 9.2, 0)), False)
sketch3.addGeometry(Part.LineSegment(App.Vector(16.4, 9.2, 0), App.Vector(16.4, 12.4, 0)), False)
sketch3.addGeometry(Part.LineSegment(App.Vector(16.4, 12.4, 0), App.Vector(13.1, 12.4, 0)), False)
sketch3.addGeometry(Part.LineSegment(App.Vector(13.1, 12.4, 0), App.Vector(13.1, 9.2, 0)), False)
sketch3.addGeometry(Part.LineSegment(App.Vector(35, 9.2, 0), App.Vector(31.6, 9.2, 0)), False)
sketch3.addGeometry(Part.LineSegment(App.Vector(31.6, 9.2, 0), App.Vector(31.6, 5.8, 0)), False)
sketch3.addGeometry(Part.LineSegment(App.Vector(31.6, 5.8, 0), App.Vector(35, 5.8, 0)), False)
sketch3.addGeometry(Part.LineSegment(App.Vector(35, 5.8, 0), App.Vector(35, 2.5, 0)), False)
sketch3.addGeometry(Part.LineSegment(App.Vector(35, 2.5, 0), App.Vector(38.2, 2.5, 0)), False)
sketch3.addGeometry(Part.LineSegment(App.Vector(38.2, 2.5, 0), App.Vector(38.2, 5.8, 0)), False)
sketch3.addGeometry(Part.LineSegment(App.Vector(38.2, 5.8, 0), App.Vector(41.5, 5.8, 0)), False)
sketch3.addGeometry(Part.LineSegment(App.Vector(41.5, 5.8, 0), App.Vector(41.5, 9.2, 0)), False)
sketch3.addGeometry(Part.LineSegment(App.Vector(41.5, 9.2, 0), App.Vector(38.2, 9.2, 0)), False)
sketch3.addGeometry(Part.LineSegment(App.Vector(38.2, 9.2, 0), App.Vector(38.2, 12.4, 0)), False)
sketch3.addGeometry(Part.LineSegment(App.Vector(38.2, 12.4, 0), App.Vector(35, 12.4, 0)), False)
sketch3.addGeometry(Part.LineSegment(App.Vector(35, 12.4, 0), App.Vector(35, 9.2, 0)), False)
sketch3.addConstraint(Sketcher.Constraint("Coincident", 0, 2, 1, 1))
sketch3.addConstraint(Sketcher.Constraint("Coincident", 1, 2, 2, 1))
sketch3.addConstraint(Sketcher.Constraint("Coincident", 2, 2, 3, 1))
sketch3.addConstraint(Sketcher.Constraint("Coincident", 3, 2, 4, 1))
sketch3.addConstraint(Sketcher.Constraint("Coincident", 4, 2, 5, 1))
sketch3.addConstraint(Sketcher.Constraint("Coincident", 5, 2, 6, 1))
sketch3.addConstraint(Sketcher.Constraint("Coincident", 6, 2, 7, 1))
sketch3.addConstraint(Sketcher.Constraint("Coincident", 7, 2, 8, 1))
sketch3.addConstraint(Sketcher.Constraint("Coincident", 8, 2, 9, 1))
sketch3.addConstraint(Sketcher.Constraint("Coincident", 9, 2, 10, 1))
sketch3.addConstraint(Sketcher.Constraint("Coincident", 10, 2, 11, 1))
sketch3.addConstraint(Sketcher.Constraint("Coincident", 11, 2, 0, 1))
sketch3.addConstraint(Sketcher.Constraint("Coincident", 12, 2, 13, 1))
sketch3.addConstraint(Sketcher.Constraint("Coincident", 13, 2, 14, 1))
sketch3.addConstraint(Sketcher.Constraint("Coincident", 14, 2, 15, 1))
sketch3.addConstraint(Sketcher.Constraint("Coincident", 15, 2, 16, 1))
sketch3.addConstraint(Sketcher.Constraint("Coincident", 16, 2, 17, 1))
sketch3.addConstraint(Sketcher.Constraint("Coincident", 17, 2, 18, 1))
sketch3.addConstraint(Sketcher.Constraint("Coincident", 18, 2, 19, 1))
sketch3.addConstraint(Sketcher.Constraint("Coincident", 19, 2, 20, 1))
sketch3.addConstraint(Sketcher.Constraint("Coincident", 20, 2, 21, 1))
sketch3.addConstraint(Sketcher.Constraint("Coincident", 21, 2, 22, 1))
sketch3.addConstraint(Sketcher.Constraint("Coincident", 22, 2, 23, 1))
sketch3.addConstraint(Sketcher.Constraint("Coincident", 23, 2, 12, 1))
sketch3.addConstraint(Sketcher.Constraint("Coincident", 24, 2, 25, 1))
sketch3.addConstraint(Sketcher.Constraint("Coincident", 25, 2, 26, 1))
sketch3.addConstraint(Sketcher.Constraint("Coincident", 26, 2, 27, 1))
sketch3.addConstraint(Sketcher.Constraint("Coincident", 27, 2, 28, 1))
sketch3.addConstraint(Sketcher.Constraint("Coincident", 28, 2, 29, 1))
sketch3.addConstraint(Sketcher.Constraint("Coincident", 29, 2, 30, 1))
sketch3.addConstraint(Sketcher.Constraint("Coincident", 30, 2, 31, 1))
sketch3.addConstraint(Sketcher.Constraint("Coincident", 31, 2, 32, 1))
sketch3.addConstraint(Sketcher.Constraint("Coincident", 32, 2, 33, 1))
sketch3.addConstraint(Sketcher.Constraint("Coincident", 33, 2, 34, 1))
sketch3.addConstraint(Sketcher.Constraint("Coincident", 34, 2, 35, 1))
sketch3.addConstraint(Sketcher.Constraint("Coincident", 35, 2, 24, 1))
sketch3.addConstraint(Sketcher.Constraint("Coincident", 36, 2, 37, 1))
sketch3.addConstraint(Sketcher.Constraint("Coincident", 37, 2, 38, 1))
sketch3.addConstraint(Sketcher.Constraint("Coincident", 38, 2, 39, 1))
sketch3.addConstraint(Sketcher.Constraint("Coincident", 39, 2, 40, 1))
sketch3.addConstraint(Sketcher.Constraint("Coincident", 40, 2, 41, 1))
sketch3.addConstraint(Sketcher.Constraint("Coincident", 41, 2, 42, 1))
sketch3.addConstraint(Sketcher.Constraint("Coincident", 42, 2, 43, 1))
sketch3.addConstraint(Sketcher.Constraint("Coincident", 43, 2, 44, 1))
sketch3.addConstraint(Sketcher.Constraint("Coincident", 44, 2, 45, 1))
sketch3.addConstraint(Sketcher.Constraint("Coincident", 45, 2, 46, 1))
sketch3.addConstraint(Sketcher.Constraint("Coincident", 46, 2, 47, 1))
sketch3.addConstraint(Sketcher.Constraint("Coincident", 47, 2, 36, 1))
sketch3.addConstraint(Sketcher.Constraint("Horizontal", 0))
sketch3.addConstraint(Sketcher.Constraint("Vertical", 1))
sketch3.addConstraint(Sketcher.Constraint("Horizontal", 2))
sketch3.addConstraint(Sketcher.Constraint("Vertical", 3))
sketch3.addConstraint(Sketcher.Constraint("Horizontal", 4))
sketch3.addConstraint(Sketcher.Constraint("Vertical", 5))
sketch3.addConstraint(Sketcher.Constraint("Horizontal", 6))
sketch3.addConstraint(Sketcher.Constraint("Vertical", 7))
sketch3.addConstraint(Sketcher.Constraint("Horizontal", 8))
sketch3.addConstraint(Sketcher.Constraint("Vertical", 9))
sketch3.addConstraint(Sketcher.Constraint("Horizontal", 10))
sketch3.addConstraint(Sketcher.Constraint("Vertical", 11))
sketch3.addConstraint(Sketcher.Constraint("Horizontal", 12))
sketch3.addConstraint(Sketcher.Constraint("Vertical", 13))
sketch3.addConstraint(Sketcher.Constraint("Horizontal", 14))
sketch3.addConstraint(Sketcher.Constraint("Vertical", 15))
sketch3.addConstraint(Sketcher.Constraint("Horizontal", 16))
sketch3.addConstraint(Sketcher.Constraint("Vertical", 17))
sketch3.addConstraint(Sketcher.Constraint("Horizontal", 18))
sketch3.addConstraint(Sketcher.Constraint("Vertical", 19))
sketch3.addConstraint(Sketcher.Constraint("Horizontal", 20))
sketch3.addConstraint(Sketcher.Constraint("Vertical", 21))
sketch3.addConstraint(Sketcher.Constraint("Horizontal", 22))
sketch3.addConstraint(Sketcher.Constraint("Vertical", 23))
sketch3.addConstraint(Sketcher.Constraint("Horizontal", 24))
sketch3.addConstraint(Sketcher.Constraint("Vertical", 25))
sketch3.addConstraint(Sketcher.Constraint("Horizontal", 26))
sketch3.addConstraint(Sketcher.Constraint("Vertical", 27))
sketch3.addConstraint(Sketcher.Constraint("Horizontal", 28))
sketch3.addConstraint(Sketcher.Constraint("Vertical", 29))
sketch3.addConstraint(Sketcher.Constraint("Horizontal", 30))
sketch3.addConstraint(Sketcher.Constraint("Vertical", 31))
sketch3.addConstraint(Sketcher.Constraint("Horizontal", 32))
sketch3.addConstraint(Sketcher.Constraint("Vertical", 33))
sketch3.addConstraint(Sketcher.Constraint("Horizontal", 34))
sketch3.addConstraint(Sketcher.Constraint("Vertical", 35))
sketch3.addConstraint(Sketcher.Constraint("Horizontal", 36))
sketch3.addConstraint(Sketcher.Constraint("Vertical", 37))
sketch3.addConstraint(Sketcher.Constraint("Horizontal", 38))
sketch3.addConstraint(Sketcher.Constraint("Vertical", 39))
sketch3.addConstraint(Sketcher.Constraint("Horizontal", 40))
sketch3.addConstraint(Sketcher.Constraint("Vertical", 41))
sketch3.addConstraint(Sketcher.Constraint("Horizontal", 42))
sketch3.addConstraint(Sketcher.Constraint("Vertical", 43))
sketch3.addConstraint(Sketcher.Constraint("Horizontal", 44))
sketch3.addConstraint(Sketcher.Constraint("Vertical", 45))
sketch3.addConstraint(Sketcher.Constraint("Horizontal", 46))
sketch3.addConstraint(Sketcher.Constraint("Vertical", 47))
sketch3.addConstraint(Sketcher.Constraint("Horizontal", 4, 2, 7, 2))
sketch3.addConstraint(Sketcher.Constraint("Horizontal", 2, 2, 9, 2))
sketch3.addConstraint(Sketcher.Constraint("Horizontal", 10, 2, 12, 2))
sketch3.addConstraint(Sketcher.Constraint("Horizontal", 8, 2, 13, 2))
sketch3.addConstraint(Sketcher.Constraint("Horizontal", 6, 2, 15, 2))
sketch3.addConstraint(Sketcher.Constraint("Horizontal", 14, 2, 17, 2))
sketch3.addConstraint(Sketcher.Constraint("Horizontal", 12, 2, 19, 2))
sketch3.addConstraint(Sketcher.Constraint("Horizontal", 11, 2, 21, 2))
sketch3.addConstraint(Sketcher.Constraint("Horizontal", 23, 2, 24, 2))
sketch3.addConstraint(Sketcher.Constraint("Horizontal", 18, 2, 25, 2))
sketch3.addConstraint(Sketcher.Constraint("Horizontal", 16, 2, 27, 2))
sketch3.addConstraint(Sketcher.Constraint("Horizontal", 26, 2, 29, 2))
sketch3.addConstraint(Sketcher.Constraint("Horizontal", 24, 2, 31, 2))
sketch3.addConstraint(Sketcher.Constraint("Horizontal", 22, 2, 33, 2))
sketch3.addConstraint(Sketcher.Constraint("Horizontal", 35, 2, 36, 2))
sketch3.addConstraint(Sketcher.Constraint("Horizontal", 30, 2, 37, 2))
sketch3.addConstraint(Sketcher.Constraint("Horizontal", 28, 2, 39, 2))
sketch3.addConstraint(Sketcher.Constraint("Horizontal", 38, 2, 41, 2))
sketch3.addConstraint(Sketcher.Constraint("Horizontal", 36, 2, 43, 2))
sketch3.addConstraint(Sketcher.Constraint("Horizontal", 34, 2, 45, 2))
sketch3.addConstraint(Sketcher.Constraint("Vertical", 1, 2, 4, 2))
sketch3.addConstraint(Sketcher.Constraint("Vertical", 7, 2, 10, 2))
sketch3.addConstraint(Sketcher.Constraint("Vertical", 17, 2, 20, 2))
sketch3.addConstraint(Sketcher.Constraint("Vertical", 15, 2, 22, 2))
sketch3.addConstraint(Sketcher.Constraint("Vertical", 29, 2, 32, 2))
sketch3.addConstraint(Sketcher.Constraint("Vertical", 27, 2, 34, 2))
sketch3.addConstraint(Sketcher.Constraint("Vertical", 41, 2, 44, 2))
sketch3.addConstraint(Sketcher.Constraint("Vertical", 39, 2, 46, 2))
sketch3.addConstraint(Sketcher.Constraint("Equal", 0, 2))
sketch3.addConstraint(Sketcher.Constraint("Equal", 6, 8))
sketch3.addConstraint(Sketcher.Constraint("Equal", 10, 12))
sketch3.addConstraint(Sketcher.Constraint("Equal", 14, 16))
sketch3.addConstraint(Sketcher.Constraint("Equal", 16, 18))
sketch3.addConstraint(Sketcher.Constraint("Equal", 22, 24))
sketch3.addConstraint(Sketcher.Constraint("Equal", 26, 28))
sketch3.addConstraint(Sketcher.Constraint("Equal", 28, 30))
sketch3.addConstraint(Sketcher.Constraint("Equal", 34, 36))
sketch3.addConstraint(Sketcher.Constraint("Equal", 38, 40))
sketch3.addConstraint(Sketcher.Constraint("Equal", 40, 42))
sketch3.addConstraint(Sketcher.Constraint("Equal", 46, 1))
sketch3.addConstraint(Sketcher.Constraint("Equal", 1, 3))
sketch3.addConstraint(Sketcher.Constraint("Equal", 3, 5))
sketch3.addConstraint(Sketcher.Constraint("DistanceX", 0, 2, 0, 1, Q("3.3 mm")))
sketch3.addConstraint(Sketcher.Constraint("DistanceX", 9, 2, 12, 2, Q("12 mm")))
sketch3.addConstraint(Sketcher.Constraint("DistanceX", 19, 2, 24, 2, Q("12 mm")))
sketch3.addConstraint(Sketcher.Constraint("DistanceX", 31, 2, 36, 2, Q("12 mm")))
sketch3.addConstraint(Sketcher.Constraint("DistanceX", 0, 2, -1, 1, Q("30.75 mm")))
sketch3.addConstraint(Sketcher.Constraint("DistanceY", -1, 1, 0, 2, Q("12.45 mm")))
pocket2 = body.newObject("PartDesign::Pocket", "Pocket001")
pocket2.Profile = sketch3
pocket2.Type = "ThroughAll"

doc.recompute()
